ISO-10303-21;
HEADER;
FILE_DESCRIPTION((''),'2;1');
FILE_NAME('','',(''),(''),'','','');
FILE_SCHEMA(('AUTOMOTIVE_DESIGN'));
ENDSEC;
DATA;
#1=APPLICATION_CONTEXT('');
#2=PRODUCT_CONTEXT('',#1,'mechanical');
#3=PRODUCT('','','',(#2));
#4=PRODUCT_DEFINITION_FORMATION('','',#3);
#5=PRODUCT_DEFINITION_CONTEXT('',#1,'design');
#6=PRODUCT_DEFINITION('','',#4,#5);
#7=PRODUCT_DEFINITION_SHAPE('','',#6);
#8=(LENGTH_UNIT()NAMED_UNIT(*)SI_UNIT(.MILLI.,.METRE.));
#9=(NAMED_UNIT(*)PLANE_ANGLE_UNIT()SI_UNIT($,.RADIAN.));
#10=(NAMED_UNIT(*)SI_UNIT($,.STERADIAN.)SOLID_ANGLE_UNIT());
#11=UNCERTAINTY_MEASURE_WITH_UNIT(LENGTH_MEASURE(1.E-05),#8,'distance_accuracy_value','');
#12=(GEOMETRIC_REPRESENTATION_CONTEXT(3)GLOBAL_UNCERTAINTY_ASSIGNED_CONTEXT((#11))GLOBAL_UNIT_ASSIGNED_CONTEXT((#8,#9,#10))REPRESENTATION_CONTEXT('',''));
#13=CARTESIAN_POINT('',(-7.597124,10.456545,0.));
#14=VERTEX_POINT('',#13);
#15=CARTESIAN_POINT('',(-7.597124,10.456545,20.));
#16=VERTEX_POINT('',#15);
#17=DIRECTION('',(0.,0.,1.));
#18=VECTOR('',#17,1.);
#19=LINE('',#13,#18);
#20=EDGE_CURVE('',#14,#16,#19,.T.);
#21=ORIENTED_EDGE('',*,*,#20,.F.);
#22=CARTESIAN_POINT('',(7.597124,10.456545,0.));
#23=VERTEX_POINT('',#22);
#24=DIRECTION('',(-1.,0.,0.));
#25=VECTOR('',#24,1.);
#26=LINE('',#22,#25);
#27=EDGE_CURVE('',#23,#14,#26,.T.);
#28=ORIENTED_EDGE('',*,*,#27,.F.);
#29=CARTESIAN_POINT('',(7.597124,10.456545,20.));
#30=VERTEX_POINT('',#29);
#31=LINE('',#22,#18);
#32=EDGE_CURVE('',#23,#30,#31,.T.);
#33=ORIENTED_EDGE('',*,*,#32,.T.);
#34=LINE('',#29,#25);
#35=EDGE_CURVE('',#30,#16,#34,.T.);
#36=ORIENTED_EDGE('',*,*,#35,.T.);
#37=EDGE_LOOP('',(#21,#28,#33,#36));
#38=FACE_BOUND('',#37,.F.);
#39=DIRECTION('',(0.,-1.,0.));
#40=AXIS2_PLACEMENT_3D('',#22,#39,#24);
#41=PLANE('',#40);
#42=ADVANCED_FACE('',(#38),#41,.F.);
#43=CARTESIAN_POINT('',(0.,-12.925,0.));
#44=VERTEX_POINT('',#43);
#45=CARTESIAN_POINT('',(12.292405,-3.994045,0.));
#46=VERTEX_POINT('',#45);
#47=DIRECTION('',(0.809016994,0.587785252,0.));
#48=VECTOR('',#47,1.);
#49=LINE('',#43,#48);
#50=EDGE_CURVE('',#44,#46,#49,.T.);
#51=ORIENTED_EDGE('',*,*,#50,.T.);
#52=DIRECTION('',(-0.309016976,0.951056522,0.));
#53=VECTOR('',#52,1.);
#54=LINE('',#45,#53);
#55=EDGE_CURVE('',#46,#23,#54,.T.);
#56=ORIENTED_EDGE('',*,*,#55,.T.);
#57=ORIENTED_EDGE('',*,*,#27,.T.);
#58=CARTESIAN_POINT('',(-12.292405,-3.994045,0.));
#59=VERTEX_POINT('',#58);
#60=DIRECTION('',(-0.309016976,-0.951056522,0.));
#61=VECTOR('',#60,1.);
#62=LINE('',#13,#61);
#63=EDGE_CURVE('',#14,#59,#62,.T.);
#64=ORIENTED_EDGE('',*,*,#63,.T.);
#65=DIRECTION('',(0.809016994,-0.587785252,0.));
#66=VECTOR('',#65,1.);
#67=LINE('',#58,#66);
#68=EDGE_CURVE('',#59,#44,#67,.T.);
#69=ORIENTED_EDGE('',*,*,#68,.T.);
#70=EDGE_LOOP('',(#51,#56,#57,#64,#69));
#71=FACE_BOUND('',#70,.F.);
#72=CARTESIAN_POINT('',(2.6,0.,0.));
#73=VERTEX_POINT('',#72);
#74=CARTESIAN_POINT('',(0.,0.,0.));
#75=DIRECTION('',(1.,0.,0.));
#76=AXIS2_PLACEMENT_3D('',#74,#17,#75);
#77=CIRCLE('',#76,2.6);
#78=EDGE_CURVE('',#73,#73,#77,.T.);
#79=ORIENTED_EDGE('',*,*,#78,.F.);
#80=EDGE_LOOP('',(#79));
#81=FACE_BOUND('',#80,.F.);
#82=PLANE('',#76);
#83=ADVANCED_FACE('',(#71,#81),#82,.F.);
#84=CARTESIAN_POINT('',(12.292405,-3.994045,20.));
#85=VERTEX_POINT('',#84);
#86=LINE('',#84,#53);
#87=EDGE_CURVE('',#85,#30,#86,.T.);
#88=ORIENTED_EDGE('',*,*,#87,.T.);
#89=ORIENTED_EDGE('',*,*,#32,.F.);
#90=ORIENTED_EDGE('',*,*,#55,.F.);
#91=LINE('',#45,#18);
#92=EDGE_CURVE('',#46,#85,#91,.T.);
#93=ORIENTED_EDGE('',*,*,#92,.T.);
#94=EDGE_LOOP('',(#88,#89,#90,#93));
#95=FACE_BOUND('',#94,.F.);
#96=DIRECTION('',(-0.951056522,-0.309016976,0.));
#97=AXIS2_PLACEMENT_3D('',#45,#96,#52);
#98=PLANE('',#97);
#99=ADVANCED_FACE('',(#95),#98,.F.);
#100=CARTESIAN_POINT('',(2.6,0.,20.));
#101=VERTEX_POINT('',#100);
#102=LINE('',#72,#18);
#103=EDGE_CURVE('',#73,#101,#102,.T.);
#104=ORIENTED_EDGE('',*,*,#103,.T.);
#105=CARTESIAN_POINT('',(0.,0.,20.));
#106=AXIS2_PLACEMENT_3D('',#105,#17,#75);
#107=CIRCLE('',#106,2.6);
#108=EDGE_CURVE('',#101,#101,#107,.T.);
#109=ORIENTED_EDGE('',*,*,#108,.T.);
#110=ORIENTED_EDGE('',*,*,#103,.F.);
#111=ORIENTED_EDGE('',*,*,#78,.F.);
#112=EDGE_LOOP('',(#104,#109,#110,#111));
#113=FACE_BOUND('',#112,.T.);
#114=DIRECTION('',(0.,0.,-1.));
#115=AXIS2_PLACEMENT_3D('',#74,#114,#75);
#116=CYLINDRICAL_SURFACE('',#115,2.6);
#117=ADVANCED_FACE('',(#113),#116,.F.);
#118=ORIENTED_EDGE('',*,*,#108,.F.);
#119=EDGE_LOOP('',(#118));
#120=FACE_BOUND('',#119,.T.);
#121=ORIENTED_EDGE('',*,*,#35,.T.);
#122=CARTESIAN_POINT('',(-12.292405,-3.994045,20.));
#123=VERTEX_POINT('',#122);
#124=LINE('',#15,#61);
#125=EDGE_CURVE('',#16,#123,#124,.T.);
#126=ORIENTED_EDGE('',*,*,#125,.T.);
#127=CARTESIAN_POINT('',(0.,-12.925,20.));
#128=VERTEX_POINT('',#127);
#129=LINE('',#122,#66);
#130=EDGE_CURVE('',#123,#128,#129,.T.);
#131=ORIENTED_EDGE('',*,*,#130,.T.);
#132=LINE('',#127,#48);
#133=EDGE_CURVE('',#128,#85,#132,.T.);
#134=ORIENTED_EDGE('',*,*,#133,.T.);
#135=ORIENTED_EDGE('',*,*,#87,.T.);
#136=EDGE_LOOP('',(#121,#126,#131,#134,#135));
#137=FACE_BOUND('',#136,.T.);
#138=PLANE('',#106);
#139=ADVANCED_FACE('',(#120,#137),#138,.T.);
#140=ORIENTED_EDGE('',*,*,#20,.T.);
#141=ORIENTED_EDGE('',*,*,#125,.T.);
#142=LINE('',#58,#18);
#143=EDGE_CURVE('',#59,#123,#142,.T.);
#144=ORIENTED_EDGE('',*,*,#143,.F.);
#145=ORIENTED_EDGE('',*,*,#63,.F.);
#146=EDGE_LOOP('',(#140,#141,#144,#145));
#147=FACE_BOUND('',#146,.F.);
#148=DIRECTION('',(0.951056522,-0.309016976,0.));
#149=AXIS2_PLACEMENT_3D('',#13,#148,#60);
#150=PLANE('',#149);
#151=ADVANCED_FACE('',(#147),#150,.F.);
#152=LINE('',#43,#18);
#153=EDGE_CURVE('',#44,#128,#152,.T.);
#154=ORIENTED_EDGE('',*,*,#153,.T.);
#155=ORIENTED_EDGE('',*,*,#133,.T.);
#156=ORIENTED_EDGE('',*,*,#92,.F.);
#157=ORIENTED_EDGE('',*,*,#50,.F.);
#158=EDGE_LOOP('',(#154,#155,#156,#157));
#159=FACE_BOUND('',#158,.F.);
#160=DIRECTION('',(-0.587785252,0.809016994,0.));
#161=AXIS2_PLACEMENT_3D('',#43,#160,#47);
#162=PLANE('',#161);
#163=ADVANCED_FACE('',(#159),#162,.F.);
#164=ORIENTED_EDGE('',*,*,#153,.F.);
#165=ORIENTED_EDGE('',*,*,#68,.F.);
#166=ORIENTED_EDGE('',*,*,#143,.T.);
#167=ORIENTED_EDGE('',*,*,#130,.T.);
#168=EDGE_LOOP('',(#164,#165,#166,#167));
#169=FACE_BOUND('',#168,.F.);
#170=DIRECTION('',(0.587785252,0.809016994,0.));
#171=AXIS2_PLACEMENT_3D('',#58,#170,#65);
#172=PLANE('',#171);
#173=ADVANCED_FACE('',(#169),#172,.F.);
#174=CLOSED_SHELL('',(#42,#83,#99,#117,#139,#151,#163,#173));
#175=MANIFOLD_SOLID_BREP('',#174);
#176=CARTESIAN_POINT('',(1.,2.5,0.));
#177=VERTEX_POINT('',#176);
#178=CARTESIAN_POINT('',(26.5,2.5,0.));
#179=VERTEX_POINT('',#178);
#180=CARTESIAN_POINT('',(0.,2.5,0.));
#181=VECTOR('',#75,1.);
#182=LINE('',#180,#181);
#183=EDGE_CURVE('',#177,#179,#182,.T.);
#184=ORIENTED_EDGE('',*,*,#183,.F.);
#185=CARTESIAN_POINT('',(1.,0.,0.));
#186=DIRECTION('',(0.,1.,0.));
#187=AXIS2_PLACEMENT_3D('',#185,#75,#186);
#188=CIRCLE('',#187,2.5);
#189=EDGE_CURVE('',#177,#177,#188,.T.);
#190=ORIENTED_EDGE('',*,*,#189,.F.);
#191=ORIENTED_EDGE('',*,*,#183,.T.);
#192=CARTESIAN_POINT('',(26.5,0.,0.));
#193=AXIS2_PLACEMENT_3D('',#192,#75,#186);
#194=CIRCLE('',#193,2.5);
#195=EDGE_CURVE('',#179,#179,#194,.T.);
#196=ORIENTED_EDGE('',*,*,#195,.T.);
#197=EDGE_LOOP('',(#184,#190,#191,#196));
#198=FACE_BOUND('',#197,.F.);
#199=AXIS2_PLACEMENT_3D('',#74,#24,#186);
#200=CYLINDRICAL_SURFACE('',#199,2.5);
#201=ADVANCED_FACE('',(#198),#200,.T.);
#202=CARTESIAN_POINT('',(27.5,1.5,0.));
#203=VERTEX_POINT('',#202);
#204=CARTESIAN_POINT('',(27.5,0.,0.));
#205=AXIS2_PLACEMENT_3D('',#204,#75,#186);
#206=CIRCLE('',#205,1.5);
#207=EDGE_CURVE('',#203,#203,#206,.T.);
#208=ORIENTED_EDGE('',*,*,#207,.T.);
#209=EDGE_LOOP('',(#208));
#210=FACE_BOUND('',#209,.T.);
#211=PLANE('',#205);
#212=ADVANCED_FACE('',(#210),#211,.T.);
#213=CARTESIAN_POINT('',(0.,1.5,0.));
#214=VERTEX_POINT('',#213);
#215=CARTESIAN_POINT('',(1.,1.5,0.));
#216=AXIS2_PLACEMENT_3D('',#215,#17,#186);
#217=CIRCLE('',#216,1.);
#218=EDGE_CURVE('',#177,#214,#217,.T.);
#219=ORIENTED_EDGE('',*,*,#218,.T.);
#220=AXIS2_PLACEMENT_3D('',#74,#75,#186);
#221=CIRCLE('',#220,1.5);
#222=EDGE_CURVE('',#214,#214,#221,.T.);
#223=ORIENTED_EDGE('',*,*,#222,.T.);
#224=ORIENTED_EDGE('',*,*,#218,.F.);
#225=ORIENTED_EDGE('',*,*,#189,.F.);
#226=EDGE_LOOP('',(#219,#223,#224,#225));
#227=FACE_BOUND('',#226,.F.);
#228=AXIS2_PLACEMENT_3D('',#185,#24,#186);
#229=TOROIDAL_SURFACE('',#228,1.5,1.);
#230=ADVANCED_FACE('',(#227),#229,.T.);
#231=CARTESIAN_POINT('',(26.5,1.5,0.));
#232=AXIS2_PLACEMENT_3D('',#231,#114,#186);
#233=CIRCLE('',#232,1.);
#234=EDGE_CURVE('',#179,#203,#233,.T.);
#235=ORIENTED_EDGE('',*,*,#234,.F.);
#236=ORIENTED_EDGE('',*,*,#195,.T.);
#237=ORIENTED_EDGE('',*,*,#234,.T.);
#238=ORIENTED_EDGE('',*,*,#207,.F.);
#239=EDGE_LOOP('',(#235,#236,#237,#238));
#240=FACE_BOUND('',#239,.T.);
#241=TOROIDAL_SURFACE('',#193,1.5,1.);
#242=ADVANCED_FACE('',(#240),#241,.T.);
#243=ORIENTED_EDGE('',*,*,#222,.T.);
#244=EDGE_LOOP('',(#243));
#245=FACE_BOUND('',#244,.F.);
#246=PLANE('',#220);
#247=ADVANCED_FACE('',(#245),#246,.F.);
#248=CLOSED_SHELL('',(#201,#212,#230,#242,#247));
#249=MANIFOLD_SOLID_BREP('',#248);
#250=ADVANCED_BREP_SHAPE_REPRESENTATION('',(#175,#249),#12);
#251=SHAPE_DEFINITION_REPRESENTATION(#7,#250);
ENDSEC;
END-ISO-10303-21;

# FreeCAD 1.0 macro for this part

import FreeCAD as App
import Part
import Sketcher
from FreeCAD import Vector
Q = App.Units.Quantity


def edges_at(feature, points):
    """Names of the edges that pass closest to the given points."""
    edges = feature.Shape.Edges
    near = lambda p: min(range(len(edges)), key=lambda i: edges[i].distToShape(Part.Vertex(*p))[0])
    return sorted({f"Edge{near(p) + 1}" for p in points})


def add_polygon(sketch, points):
    """Adds a closed chain of lines whose ends are joined by coincident constraints."""
    first, n = sketch.GeometryCount, len(points)
    for a, b in zip(points, points[1:] + points[:1]):
        sketch.addGeometry(Part.LineSegment(App.Vector(*a, 0), App.Vector(*b, 0)), False)
    for i in range(n):
        sketch.addConstraint(Sketcher.Constraint("Coincident", first + i, 2, first + (i + 1) % n, 1))

doc = App.newDocument("Part")
body = doc.addObject("PartDesign::Body", "Body")

# Sketch on YZ plane
sketch1 = doc.addObject("Sketcher::SketchObject", "Sketch")
body.addObject(sketch1)
sketch1.AttachmentSupport = (doc.YZ_Plane, [""])
sketch1.MapMode = "FlatFace"
sketch1.addGeometry(Part.Circle(Vector(0, 0, 0), Vector(0, 0, 1), 2.5), False)
sketch1.addConstraint([
    Sketcher.Constraint("Coincident", 0, 3, -1, 1),
    Sketcher.Constraint("Diameter", 0, 5.0),
])
pad1 = doc.addObject("PartDesign::Pad", "Pad")
body.addObject(pad1)
pad1.Profile = sketch1
pad1.Length = 27.5
doc.recompute()

fillet = doc.addObject("PartDesign::Fillet", "Fillet")
body.addObject(fillet)
fillet.Base = (pad1, edges_at(pad1, [(27.5, -2.5, 0), (0, -2.5, 0)]))
fillet.Radius = 1
body2 = doc.addObject("PartDesign::Body", "Body001")

# Sketch on XY plane
sketch2 = doc.addObject("Sketcher::SketchObject", "Sketch001")
body2.addObject(sketch2)
sketch2.AttachmentSupport = (doc.getObject("XY_Plane001"), [""])
sketch2.MapMode = "FlatFace"
add_polygon(sketch2, [(-12.3, -4), (0, -12.9), (12.3, -4), (7.6, 10.5), (-7.6, 10.5)])  # lines 0-4
sketch2.addGeometry(Part.Circle(Vector(0, 0, 0), Vector(0, 0, 1), 2.6), False)  # 5
sketch2.addConstraint([
    Sketcher.Constraint("Horizontal", 3),
    Sketcher.Constraint("Coincident", 5, 3, -1, 1),
    Sketcher.Constraint("Symmetric", 1, 2, 4, 2, -2),
    Sketcher.Constraint("PointOnObject", 0, 2, -2),
    Sketcher.Constraint("Equal", 1, 2),
    Sketcher.Constraint("Equal", 2, 4),
    Sketcher.Constraint("Diameter", 5, 5.2),
    Sketcher.Constraint("Angle", 0, Q("-36 deg")),
    Sketcher.Constraint("Angle", 2, Q("107.999999 deg")),
    Sketcher.Constraint("DistanceY", 0, 2, -1, 1, 12.925),
    Sketcher.Constraint("Distance", 0, 15.194248),
])
pad2 = doc.addObject("PartDesign::Pad", "Pad001")
body2.addObject(pad2)
pad2.Profile = sketch2
pad2.Length = 20

doc.recompute()
